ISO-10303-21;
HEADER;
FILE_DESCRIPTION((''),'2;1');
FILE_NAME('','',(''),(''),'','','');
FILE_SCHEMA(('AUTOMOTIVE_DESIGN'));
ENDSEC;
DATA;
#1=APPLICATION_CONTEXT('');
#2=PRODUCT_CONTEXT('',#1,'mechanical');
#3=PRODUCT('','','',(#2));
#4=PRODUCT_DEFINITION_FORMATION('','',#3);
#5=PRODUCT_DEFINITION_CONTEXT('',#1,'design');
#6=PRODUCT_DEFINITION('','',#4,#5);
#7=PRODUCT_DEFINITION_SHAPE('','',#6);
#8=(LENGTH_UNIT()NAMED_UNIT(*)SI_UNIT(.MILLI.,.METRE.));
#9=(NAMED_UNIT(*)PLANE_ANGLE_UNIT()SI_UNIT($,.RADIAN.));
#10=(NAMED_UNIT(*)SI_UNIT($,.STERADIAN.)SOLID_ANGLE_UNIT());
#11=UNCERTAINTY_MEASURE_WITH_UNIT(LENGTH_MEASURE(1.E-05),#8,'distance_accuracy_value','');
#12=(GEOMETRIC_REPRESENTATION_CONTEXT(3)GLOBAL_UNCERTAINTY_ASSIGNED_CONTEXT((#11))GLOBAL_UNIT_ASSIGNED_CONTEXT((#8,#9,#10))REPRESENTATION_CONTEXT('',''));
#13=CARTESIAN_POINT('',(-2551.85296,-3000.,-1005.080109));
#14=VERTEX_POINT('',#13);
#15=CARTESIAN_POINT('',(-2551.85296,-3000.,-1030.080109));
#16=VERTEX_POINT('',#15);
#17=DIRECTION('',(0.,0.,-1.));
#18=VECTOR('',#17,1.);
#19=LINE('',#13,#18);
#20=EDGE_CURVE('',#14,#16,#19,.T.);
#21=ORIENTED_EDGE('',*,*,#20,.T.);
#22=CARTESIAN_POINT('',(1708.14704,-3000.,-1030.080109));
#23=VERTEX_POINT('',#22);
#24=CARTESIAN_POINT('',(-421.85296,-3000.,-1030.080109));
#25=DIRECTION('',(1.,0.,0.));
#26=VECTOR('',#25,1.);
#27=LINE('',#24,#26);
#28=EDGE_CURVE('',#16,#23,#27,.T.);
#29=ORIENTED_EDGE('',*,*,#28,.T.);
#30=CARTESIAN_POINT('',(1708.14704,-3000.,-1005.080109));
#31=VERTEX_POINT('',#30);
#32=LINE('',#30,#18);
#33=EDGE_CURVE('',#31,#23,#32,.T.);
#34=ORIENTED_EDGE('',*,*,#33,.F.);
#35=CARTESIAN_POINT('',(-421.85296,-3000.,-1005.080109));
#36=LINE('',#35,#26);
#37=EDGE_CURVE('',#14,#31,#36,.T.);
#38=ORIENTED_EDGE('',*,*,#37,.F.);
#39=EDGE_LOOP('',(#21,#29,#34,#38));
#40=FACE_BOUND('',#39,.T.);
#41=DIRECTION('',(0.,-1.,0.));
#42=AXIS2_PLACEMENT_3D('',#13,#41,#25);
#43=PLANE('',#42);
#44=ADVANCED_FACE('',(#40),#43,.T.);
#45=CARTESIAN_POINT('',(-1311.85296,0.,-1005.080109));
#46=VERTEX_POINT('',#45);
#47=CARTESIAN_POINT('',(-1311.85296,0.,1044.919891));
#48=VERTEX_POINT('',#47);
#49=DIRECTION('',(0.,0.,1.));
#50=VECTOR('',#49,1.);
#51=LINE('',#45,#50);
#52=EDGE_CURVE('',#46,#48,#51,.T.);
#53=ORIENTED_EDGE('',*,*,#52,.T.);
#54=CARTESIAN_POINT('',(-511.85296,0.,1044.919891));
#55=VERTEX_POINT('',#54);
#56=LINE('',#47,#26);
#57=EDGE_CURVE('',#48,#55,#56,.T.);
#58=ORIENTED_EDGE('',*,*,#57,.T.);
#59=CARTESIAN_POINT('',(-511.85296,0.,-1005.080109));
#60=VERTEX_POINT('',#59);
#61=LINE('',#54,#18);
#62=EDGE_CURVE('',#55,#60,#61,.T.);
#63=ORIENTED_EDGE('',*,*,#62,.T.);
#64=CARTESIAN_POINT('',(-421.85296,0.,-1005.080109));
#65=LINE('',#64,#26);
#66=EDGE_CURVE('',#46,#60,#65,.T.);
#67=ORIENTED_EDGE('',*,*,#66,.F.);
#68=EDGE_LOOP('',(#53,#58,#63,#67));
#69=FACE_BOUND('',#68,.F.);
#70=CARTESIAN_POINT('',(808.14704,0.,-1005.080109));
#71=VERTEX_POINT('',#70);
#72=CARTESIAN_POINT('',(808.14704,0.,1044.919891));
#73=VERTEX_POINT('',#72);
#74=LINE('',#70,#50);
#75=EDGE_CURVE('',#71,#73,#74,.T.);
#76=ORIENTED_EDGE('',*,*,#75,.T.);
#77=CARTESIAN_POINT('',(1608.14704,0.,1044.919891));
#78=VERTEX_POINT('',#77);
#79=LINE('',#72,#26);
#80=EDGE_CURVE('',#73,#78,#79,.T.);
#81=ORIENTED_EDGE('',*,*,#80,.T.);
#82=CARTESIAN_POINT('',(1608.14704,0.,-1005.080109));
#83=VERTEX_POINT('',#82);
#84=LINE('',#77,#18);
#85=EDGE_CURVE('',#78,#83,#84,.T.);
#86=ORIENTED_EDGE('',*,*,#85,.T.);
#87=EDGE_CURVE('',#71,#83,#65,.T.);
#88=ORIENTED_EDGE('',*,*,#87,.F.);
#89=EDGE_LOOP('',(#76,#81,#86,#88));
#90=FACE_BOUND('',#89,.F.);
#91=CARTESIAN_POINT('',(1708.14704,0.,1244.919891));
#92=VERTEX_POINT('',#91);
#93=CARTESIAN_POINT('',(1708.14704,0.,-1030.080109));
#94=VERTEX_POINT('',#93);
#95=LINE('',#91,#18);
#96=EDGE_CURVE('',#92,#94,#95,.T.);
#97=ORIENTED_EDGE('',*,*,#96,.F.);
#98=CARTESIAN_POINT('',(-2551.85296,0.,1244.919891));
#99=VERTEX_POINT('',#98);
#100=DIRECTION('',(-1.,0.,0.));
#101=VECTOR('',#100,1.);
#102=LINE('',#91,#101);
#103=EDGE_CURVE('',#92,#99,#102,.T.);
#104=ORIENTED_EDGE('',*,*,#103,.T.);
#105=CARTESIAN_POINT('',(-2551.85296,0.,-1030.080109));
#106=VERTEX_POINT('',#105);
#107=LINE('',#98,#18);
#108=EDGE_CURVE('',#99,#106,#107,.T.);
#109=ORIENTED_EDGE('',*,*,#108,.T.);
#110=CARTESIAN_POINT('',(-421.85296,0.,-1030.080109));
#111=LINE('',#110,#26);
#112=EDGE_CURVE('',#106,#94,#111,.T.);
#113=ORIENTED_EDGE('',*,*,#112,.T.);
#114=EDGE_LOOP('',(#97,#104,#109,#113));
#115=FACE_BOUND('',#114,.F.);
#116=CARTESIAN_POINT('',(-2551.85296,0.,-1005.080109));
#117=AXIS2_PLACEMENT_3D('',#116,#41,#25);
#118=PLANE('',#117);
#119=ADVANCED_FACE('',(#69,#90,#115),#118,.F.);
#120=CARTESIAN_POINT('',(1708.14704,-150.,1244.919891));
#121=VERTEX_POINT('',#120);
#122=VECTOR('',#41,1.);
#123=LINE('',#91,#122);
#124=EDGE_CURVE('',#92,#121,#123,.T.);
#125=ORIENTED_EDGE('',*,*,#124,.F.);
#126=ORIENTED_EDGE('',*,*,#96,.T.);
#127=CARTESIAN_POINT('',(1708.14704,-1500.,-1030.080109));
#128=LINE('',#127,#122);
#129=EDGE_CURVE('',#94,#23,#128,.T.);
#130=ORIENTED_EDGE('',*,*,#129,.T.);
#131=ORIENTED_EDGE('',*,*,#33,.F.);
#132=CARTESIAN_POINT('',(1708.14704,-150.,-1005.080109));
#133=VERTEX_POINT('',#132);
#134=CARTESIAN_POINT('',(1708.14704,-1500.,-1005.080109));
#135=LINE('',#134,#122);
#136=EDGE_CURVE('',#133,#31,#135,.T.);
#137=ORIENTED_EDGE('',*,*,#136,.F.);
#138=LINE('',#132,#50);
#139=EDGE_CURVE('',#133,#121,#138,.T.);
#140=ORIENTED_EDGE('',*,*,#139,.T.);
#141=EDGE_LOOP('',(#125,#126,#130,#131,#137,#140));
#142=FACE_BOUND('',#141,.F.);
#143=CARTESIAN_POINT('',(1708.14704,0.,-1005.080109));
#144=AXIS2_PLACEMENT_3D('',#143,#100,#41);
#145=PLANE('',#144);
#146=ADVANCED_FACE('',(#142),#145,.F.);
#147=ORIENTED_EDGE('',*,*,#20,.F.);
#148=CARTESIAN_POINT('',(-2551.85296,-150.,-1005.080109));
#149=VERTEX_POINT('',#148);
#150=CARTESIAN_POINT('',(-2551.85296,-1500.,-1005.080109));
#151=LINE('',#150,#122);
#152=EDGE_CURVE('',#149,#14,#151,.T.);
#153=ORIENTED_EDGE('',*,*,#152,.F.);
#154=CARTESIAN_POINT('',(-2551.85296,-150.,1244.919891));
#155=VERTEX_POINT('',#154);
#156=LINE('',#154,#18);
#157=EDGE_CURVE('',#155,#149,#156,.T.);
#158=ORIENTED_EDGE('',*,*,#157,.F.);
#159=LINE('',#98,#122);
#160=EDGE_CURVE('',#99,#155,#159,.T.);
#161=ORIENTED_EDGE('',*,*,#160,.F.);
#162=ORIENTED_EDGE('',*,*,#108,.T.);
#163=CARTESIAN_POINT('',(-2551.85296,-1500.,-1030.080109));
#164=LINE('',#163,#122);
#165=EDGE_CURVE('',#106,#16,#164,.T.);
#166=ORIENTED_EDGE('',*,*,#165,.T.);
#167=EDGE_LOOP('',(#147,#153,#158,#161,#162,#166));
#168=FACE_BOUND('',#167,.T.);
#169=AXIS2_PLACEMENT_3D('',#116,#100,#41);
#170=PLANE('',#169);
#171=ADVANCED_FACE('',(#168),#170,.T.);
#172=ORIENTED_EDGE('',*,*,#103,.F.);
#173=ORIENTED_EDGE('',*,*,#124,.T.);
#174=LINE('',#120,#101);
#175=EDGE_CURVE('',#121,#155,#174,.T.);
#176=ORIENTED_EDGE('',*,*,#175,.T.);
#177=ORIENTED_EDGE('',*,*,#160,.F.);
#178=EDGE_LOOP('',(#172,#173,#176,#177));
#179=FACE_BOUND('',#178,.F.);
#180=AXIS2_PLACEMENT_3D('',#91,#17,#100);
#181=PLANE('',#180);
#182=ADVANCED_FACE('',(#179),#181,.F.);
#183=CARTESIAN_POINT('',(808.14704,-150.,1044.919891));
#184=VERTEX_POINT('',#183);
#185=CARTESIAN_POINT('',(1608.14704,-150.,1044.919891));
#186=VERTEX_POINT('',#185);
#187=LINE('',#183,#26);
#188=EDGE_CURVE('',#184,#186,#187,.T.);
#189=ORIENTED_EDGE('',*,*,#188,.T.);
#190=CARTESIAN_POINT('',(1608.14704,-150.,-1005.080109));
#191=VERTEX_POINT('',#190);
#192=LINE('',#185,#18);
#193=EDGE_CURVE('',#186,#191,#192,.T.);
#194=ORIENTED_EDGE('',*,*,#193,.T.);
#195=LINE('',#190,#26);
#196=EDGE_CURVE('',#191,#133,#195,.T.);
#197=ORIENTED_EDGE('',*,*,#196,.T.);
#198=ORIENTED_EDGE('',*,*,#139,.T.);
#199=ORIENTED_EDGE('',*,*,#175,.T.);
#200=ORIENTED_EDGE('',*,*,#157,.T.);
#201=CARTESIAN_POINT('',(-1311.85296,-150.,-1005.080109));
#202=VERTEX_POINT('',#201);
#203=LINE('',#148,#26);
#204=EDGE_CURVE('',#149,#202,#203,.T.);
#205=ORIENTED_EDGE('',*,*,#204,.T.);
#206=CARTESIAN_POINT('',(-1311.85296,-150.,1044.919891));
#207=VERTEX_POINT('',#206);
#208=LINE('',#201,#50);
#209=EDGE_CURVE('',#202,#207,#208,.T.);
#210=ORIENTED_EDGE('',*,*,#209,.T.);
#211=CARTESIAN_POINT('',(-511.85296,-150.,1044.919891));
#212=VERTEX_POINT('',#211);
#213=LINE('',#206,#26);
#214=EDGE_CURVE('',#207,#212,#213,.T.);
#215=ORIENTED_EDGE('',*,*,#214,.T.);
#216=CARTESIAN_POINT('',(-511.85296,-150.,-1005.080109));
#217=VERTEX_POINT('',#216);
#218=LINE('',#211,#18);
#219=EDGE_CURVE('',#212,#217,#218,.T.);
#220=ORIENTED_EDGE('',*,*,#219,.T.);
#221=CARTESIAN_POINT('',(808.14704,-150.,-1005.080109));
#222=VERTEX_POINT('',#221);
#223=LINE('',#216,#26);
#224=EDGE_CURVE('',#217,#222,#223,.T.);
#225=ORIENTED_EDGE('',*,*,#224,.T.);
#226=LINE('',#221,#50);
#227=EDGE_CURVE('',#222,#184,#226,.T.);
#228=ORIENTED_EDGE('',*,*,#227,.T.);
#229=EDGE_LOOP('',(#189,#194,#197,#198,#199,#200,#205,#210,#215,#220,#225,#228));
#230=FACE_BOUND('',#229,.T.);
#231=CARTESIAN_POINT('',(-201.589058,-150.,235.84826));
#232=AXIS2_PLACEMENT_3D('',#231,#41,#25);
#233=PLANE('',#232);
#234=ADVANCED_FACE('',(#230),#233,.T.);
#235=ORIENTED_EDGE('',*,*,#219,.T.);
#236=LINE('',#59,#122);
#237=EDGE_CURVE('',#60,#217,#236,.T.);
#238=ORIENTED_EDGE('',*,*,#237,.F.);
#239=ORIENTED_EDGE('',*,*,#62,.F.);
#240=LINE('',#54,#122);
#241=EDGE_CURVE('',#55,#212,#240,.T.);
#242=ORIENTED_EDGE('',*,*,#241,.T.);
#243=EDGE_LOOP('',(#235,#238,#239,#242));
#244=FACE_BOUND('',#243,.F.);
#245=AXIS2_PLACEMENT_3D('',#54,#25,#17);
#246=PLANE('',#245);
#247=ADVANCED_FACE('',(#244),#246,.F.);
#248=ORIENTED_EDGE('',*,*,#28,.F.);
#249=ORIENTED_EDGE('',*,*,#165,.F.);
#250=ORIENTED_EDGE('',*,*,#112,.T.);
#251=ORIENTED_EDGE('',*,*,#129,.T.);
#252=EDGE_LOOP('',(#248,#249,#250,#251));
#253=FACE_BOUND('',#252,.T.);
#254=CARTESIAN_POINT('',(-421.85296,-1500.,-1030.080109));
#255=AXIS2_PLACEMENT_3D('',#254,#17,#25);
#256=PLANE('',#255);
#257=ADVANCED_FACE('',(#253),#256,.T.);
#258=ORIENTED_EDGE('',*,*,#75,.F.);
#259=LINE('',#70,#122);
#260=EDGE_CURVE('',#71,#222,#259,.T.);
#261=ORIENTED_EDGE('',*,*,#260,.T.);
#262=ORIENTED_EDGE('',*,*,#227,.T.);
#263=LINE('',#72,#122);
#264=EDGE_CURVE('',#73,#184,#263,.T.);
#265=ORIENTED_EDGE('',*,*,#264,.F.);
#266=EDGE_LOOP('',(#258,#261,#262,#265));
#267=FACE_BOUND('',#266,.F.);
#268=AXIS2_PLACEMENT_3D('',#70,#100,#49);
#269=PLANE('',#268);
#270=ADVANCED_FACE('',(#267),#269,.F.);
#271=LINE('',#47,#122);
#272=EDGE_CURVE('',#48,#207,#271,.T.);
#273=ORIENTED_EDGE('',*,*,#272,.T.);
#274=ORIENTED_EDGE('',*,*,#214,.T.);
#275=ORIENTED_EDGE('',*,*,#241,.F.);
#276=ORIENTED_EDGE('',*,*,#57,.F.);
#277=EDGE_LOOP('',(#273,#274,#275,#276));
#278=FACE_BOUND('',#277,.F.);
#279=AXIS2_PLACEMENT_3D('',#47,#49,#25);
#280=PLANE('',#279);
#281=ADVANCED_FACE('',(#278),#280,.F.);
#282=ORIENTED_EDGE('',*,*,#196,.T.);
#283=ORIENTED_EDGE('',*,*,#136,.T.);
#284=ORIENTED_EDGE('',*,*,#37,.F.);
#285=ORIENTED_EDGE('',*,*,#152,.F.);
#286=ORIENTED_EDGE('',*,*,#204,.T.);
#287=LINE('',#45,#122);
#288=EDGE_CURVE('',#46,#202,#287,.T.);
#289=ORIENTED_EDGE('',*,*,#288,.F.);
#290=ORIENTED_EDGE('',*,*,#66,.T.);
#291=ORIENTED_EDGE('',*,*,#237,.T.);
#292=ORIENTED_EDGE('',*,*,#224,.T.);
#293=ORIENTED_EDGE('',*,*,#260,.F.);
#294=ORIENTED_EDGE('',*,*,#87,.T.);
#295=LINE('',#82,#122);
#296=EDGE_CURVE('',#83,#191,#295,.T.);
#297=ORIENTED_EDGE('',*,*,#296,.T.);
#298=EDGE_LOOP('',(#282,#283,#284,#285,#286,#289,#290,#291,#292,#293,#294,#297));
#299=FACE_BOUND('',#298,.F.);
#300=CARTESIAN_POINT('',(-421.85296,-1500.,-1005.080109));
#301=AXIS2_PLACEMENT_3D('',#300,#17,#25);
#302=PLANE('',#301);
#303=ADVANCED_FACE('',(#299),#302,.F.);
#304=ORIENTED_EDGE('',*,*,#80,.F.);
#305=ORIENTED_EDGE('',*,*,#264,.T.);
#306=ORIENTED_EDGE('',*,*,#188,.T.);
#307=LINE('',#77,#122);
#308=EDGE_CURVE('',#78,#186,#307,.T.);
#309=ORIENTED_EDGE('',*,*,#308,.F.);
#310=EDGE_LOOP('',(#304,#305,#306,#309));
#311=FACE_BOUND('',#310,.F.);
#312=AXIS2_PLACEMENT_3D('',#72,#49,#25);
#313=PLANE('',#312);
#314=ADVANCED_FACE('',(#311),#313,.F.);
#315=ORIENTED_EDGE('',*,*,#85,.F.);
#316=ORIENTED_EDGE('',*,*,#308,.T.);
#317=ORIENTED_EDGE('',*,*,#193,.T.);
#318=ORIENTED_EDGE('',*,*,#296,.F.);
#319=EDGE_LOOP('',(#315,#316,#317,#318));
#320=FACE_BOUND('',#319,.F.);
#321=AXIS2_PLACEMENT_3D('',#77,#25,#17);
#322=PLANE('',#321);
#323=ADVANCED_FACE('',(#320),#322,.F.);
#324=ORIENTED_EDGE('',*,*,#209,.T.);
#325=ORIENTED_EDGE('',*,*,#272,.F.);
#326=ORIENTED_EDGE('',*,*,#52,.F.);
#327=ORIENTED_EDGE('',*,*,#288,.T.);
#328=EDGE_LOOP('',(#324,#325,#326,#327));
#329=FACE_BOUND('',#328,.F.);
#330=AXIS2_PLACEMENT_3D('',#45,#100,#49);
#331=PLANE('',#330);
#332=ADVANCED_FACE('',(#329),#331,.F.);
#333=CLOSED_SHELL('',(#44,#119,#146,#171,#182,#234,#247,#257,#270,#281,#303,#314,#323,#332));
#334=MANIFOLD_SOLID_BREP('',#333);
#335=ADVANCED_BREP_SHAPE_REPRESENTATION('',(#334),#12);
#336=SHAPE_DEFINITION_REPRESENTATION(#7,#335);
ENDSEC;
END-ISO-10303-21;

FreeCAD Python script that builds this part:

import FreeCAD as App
import Part
import Sketcher

V = App.Vector


def add_polygon(sketch, points):
    """Adds a closed chain of lines whose ends are joined by coincident constraints."""
    first, n = sketch.GeometryCount, len(points)
    for a, b in zip(points, points[1:] + points[:1]):
        sketch.addGeometry(Part.LineSegment(App.Vector(*a, 0), App.Vector(*b, 0)), False)
    for i in range(n):
        sketch.addConstraint(Sketcher.Constraint("Coincident", first + i, 2, first + (i + 1) % n, 1))

doc = App.newDocument("Part")
params = doc.addObject("Spreadsheet::Sheet", "Params")
for row, (alias, value) in enumerate([
    ("sketch1_width", "4260 mm"),
    ("sketch1_width2", "1240 mm"),
    ("sketch1_width3", "800 mm"),
    ("sketch1_width4", "1320 mm"),
    ("sketch1_height", "2250 mm"),
    ("pad1_length", "150 mm"),
    ("sketch2_width", "4260 mm"),
    ("sketch2_height", "3000 mm"),
    ("pad2_length", "25 mm"),
], start=1):
    params.set(f"A{row}", alias)
    params.set(f"B{row}", "=" + value)
    params.setAlias(f"B{row}", alias)

body = doc.addObject("PartDesign::Body", "Body")

# Sketch on XZ plane
sketch1 = doc.addObject("Sketcher::SketchObject", "Sketch")
body.addObject(sketch1)
sketch1.AttachmentSupport = (doc.XZ_Plane, [""])
sketch1.MapMode = "FlatFace"
add_polygon(sketch1, [(1708, 1245), (-2552, 1245), (-2552, -1005), (-1312, -1005), (-1312, 1045), (-512, 1045), (-512, -1005), (808, -1005), (808, 1045), (1608, 1045), (1608, -1005), (1708, -1005)])  # lines 0-11
sketch1.addConstraint([
    Sketcher.Constraint("Horizontal", 0),
    Sketcher.Constraint("Vertical", 1),
    Sketcher.Constraint("Horizontal", 2),
    Sketcher.Constraint("Vertical", 3),
    Sketcher.Constraint("Horizontal", 4),
    Sketcher.Constraint("Vertical", 5),
    Sketcher.Constraint("Horizontal", 6),
    Sketcher.Constraint("Vertical", 7),
    Sketcher.Constraint("Horizontal", 8),
    Sketcher.Constraint("Vertical", 9),
    Sketcher.Constraint("Horizontal", 10),
    Sketcher.Constraint("Vertical", 11),
    Sketcher.Constraint("Horizontal", 2, 2, 5, 2),
    Sketcher.Constraint("Horizontal", 4, 2, 7, 2),
    Sketcher.Constraint("Horizontal", 6, 2, 9, 2),
    Sketcher.Constraint("Equal", 4, 8),
    Sketcher.Constraint("DistanceX", 0, 2, 0, 1, 4260.0),
    Sketcher.Constraint("DistanceX", 2, 1, 2, 2, 1240.0),
    Sketcher.Constraint("DistanceX", 4, 1, 4, 2, 800.0),
    Sketcher.Constraint("DistanceX", 6, 1, 6, 2, 1320.0),
    Sketcher.Constraint("DistanceY", 1, 2, 1, 1, 2250.0),
    Sketcher.Constraint("DistanceY", 3, 1, 3, 2, 2050.0),
    Sketcher.Constraint("DistanceX", 0, 2, -1, 1, 2551.85296),
    Sketcher.Constraint("DistanceY", -1, 1, 0, 2, 1244.919891),
])
sketch1.setExpression("Constraints[28]", "Params.sketch1_width")
sketch1.setExpression("Constraints[29]", "Params.sketch1_width2")
sketch1.setExpression("Constraints[30]", "Params.sketch1_width3")
sketch1.setExpression("Constraints[31]", "Params.sketch1_width4")
sketch1.setExpression("Constraints[32]", "Params.sketch1_height")
pad1 = doc.addObject("PartDesign::Pad", "Pad")
body.addObject(pad1)
pad1.Profile = sketch1
pad1.setExpression("Length", "Params.pad1_length")

# Sketch on XY plane
sketch2 = doc.addObject("Sketcher::SketchObject", "Sketch001")
body.addObject(sketch2)
sketch2.AttachmentSupport = (doc.XY_Plane, [""])
sketch2.MapMode = "FlatFace"
sketch2.AttachmentOffset = App.Placement(V(0, 0, -1005.080109), App.Rotation())
add_polygon(sketch2, [(-2552, -3000), (-2552, 0), (1708, 0), (1708, -3000)])  # lines 0-3
sketch2.addConstraint([
    Sketcher.Constraint("Vertical", 0),
    Sketcher.Constraint("Horizontal", 1),
    Sketcher.Constraint("Vertical", 2),
    Sketcher.Constraint("Horizontal", 3),
    Sketcher.Constraint("PointOnObject", 0, 2, -1),
    Sketcher.Constraint("DistanceX", 1, 1, 1, 2, 4260.0),
    Sketcher.Constraint("DistanceY", 0, 1, 0, 2, 3000.0),
    Sketcher.Constraint("DistanceX", 0, 2, -1, 1, 2551.85296),
])
sketch2.setExpression("Constraints[9]", "Params.sketch2_width")
sketch2.setExpression("Constraints[10]", "Params.sketch2_height")
pad2 = doc.addObject("PartDesign::Pad", "Pad001")
body.addObject(pad2)
pad2.Profile = sketch2
pad2.setExpression("Length", "Params.pad2_length")
pad2.Reversed = True

doc.recompute()
